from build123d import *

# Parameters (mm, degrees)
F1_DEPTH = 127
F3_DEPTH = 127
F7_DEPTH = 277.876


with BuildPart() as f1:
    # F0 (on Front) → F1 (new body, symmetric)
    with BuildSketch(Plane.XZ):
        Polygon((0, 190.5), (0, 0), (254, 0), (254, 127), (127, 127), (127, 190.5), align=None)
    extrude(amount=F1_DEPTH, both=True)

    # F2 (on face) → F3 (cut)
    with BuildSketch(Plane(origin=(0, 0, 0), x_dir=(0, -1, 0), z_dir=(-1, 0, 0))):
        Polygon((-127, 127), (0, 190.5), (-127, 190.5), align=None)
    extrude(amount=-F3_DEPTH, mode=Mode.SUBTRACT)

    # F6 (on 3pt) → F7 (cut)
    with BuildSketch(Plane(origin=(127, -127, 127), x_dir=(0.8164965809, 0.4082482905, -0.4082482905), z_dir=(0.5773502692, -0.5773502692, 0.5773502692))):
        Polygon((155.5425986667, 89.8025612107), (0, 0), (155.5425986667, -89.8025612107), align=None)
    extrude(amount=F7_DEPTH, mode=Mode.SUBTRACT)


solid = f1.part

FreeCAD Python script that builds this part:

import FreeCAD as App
import Part
import Sketcher
from FreeCAD import Vector
Q = App.Units.Quantity


def add_polygon(sketch, points):
    """Adds a closed chain of lines whose ends are joined by coincident constraints."""
    first, n = sketch.GeometryCount, len(points)
    for a, b in zip(points, points[1:] + points[:1]):
        sketch.addGeometry(Part.LineSegment(App.Vector(*a, 0), App.Vector(*b, 0)), False)
    for i in range(n):
        sketch.addConstraint(Sketcher.Constraint("Coincident", first + i, 2, first + (i + 1) % n, 1))

doc = App.newDocument("Part")
body = doc.addObject("PartDesign::Body", "Body")

# Sketch on XZ plane
sketch1 = body.newObject("Sketcher::SketchObject", "Sketch")
sketch1.AttachmentSupport = (doc.getObject("XZ_Plane"), [""])
sketch1.MapMode = "FlatFace"
add_polygon(sketch1, [(0, 190), (0, 0), (254, 0), (254, 127), (127, 127), (127, 190)])  # lines 0-5
sketch1.addConstraint(Sketcher.Constraint("Vertical", 0))
sketch1.addConstraint(Sketcher.Constraint("Horizontal", 1))
sketch1.addConstraint(Sketcher.Constraint("Vertical", 2))
sketch1.addConstraint(Sketcher.Constraint("Horizontal", 3))
sketch1.addConstraint(Sketcher.Constraint("Vertical", 4))
sketch1.addConstraint(Sketcher.Constraint("Horizontal", 5))
sketch1.addConstraint(Sketcher.Constraint("Coincident", 0, 2, -1, 1))
sketch1.addConstraint(Sketcher.Constraint("Equal", 3, 5))
sketch1.addConstraint(Sketcher.Constraint("Equal", 5, 2))
sketch1.addConstraint(Sketcher.Constraint("DistanceX", 1, 1, 1, 2, Q("10 in")))
sketch1.addConstraint(Sketcher.Constraint("DistanceY", 0, 2, 0, 1, Q("7.5 in")))
pad1 = body.newObject("PartDesign::Pad", "Pad")
pad1.Profile = sketch1
pad1.Length = Q("10 in")
pad1.Midplane = True

# Sketch on YZ plane
sketch2 = body.newObject("Sketcher::SketchObject", "Sketch001")
sketch2.AttachmentSupport = (doc.getObject("YZ_Plane"), [""])
sketch2.MapMode = "FlatFace"
add_polygon(sketch2, [(127, 127), (0, 190), (127, 190)])  # lines 0-2
sketch2.addConstraint(Sketcher.Constraint("Horizontal", 1))
sketch2.addConstraint(Sketcher.Constraint("Vertical", 2))
sketch2.addConstraint(Sketcher.Constraint("PointOnObject", 0, 2, -2))
sketch2.addConstraint(Sketcher.Constraint("DistanceX", 1, 1, 1, 2, Q("5 in")))
sketch2.addConstraint(Sketcher.Constraint("DistanceY", 2, 2, 2, 1, Q("2.5 in")))
sketch2.addConstraint(Sketcher.Constraint("DistanceY", -1, 1, 2, 2, Q("5 in")))
pocket1 = body.newObject("PartDesign::Pocket", "Pocket")
pocket1.Profile = sketch2
pocket1.Length = Q("5 in")
pocket1.Reversed = True

# Sketch on an angled plane
sketch3 = body.newObject("Sketcher::SketchObject", "Sketch002")
sketch3.Placement = App.Placement(Vector(127, -127, 127), App.Rotation(Vector(0.816496581, 0.40824829, -0.40824829), Vector(0, 0.707106781, 0.707106781), Vector(0.577350269, -0.577350269, 0.577350269), "ZXY"))
add_polygon(sketch3, [(156, 90), (0, 0), (156, -90)])  # lines 0-2
sketch3.addConstraint(Sketcher.Constraint("Vertical", 2))
sketch3.addConstraint(Sketcher.Constraint("Coincident", 0, 2, -1, 1))
sketch3.addConstraint(Sketcher.Constraint("Equal", 0, 1))
sketch3.addConstraint(Sketcher.Constraint("Angle", 0, Q("-150 deg")))
sketch3.addConstraint(Sketcher.Constraint("DistanceX", -1, 1, 1, 2, 155.542599))
pocket2 = body.newObject("PartDesign::Pocket", "Pocket001")
pocket2.Profile = sketch3
pocket2.Length = Q("10.94 in")
pocket2.Reversed = True

doc.recompute()
